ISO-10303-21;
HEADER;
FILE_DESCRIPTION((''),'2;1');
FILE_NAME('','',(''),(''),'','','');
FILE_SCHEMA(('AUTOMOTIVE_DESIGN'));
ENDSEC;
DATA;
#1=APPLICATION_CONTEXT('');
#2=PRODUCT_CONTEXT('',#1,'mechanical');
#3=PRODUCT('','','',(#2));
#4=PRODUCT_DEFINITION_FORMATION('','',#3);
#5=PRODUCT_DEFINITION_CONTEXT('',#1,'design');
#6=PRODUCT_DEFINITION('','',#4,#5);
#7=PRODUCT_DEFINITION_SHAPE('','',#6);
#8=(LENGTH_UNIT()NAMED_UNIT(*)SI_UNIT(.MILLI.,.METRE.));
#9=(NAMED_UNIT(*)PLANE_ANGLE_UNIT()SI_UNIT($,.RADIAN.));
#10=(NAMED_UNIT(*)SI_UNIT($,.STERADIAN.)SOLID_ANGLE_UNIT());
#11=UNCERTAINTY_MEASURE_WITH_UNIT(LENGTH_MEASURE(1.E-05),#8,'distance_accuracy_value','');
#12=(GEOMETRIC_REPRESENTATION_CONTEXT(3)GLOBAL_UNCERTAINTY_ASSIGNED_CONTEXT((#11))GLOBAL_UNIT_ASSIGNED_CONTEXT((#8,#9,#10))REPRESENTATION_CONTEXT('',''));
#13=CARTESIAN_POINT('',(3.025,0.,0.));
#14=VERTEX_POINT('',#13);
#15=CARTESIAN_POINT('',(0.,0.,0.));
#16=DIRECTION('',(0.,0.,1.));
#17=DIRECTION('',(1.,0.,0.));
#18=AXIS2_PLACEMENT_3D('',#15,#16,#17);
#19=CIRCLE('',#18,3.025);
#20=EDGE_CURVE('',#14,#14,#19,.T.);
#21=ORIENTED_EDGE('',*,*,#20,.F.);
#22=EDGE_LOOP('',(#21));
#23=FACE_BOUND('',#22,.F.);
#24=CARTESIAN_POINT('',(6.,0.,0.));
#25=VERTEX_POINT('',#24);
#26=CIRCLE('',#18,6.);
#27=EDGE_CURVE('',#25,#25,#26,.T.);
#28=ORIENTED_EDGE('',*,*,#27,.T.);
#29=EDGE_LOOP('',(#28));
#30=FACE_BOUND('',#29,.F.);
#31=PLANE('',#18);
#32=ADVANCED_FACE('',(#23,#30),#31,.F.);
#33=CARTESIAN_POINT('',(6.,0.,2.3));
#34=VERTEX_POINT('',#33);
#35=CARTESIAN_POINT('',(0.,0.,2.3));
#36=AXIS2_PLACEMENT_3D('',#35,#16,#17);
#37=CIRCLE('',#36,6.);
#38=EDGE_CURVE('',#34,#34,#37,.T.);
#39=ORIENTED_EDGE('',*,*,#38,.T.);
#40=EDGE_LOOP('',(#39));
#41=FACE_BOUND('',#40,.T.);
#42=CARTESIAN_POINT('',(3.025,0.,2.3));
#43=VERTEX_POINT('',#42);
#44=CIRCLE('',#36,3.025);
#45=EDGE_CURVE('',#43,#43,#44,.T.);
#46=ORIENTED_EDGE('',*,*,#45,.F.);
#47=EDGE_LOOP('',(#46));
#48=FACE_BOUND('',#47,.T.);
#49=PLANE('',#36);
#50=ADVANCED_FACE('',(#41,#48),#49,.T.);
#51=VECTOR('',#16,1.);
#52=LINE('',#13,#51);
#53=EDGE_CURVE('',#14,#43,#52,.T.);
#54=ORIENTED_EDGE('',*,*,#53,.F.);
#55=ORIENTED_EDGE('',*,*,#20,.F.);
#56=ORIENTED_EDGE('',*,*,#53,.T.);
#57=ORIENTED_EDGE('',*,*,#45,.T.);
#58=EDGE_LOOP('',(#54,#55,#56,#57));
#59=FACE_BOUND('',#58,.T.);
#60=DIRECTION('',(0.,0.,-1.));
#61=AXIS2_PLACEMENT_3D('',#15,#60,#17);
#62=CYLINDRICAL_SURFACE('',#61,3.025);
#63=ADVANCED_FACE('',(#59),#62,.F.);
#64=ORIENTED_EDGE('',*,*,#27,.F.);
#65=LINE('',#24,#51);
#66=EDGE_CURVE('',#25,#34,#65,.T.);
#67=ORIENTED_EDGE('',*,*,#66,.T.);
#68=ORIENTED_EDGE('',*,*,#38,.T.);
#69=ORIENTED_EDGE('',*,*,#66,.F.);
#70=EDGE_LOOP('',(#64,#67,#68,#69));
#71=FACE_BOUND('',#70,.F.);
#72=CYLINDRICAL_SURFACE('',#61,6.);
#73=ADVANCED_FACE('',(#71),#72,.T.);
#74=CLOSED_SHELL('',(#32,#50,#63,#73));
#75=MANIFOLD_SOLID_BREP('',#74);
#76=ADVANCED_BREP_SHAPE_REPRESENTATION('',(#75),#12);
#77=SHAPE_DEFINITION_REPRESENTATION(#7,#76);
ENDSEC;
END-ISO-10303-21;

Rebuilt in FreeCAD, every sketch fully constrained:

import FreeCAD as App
import Part
import Sketcher

V = App.Vector

doc = App.newDocument("Part")
body = doc.addObject("PartDesign::Body", "Body")

# Sketch on XY plane
sketch1 = body.newObject("Sketcher::SketchObject", "Sketch")
sketch1.AttachmentSupport = (doc.getObject("XY_Plane"), [""])
sketch1.MapMode = "FlatFace"
sketch1.addGeometry([
    Part.Circle(V(0, 0, 0), V(0, 0, 1), 6),
    Part.Circle(V(0, 0, 0), V(0, 0, 1), 3),
], False)
sketch1.addConstraint([
    Sketcher.Constraint("Coincident", 0, 3, -1, 1),
    Sketcher.Constraint("Coincident", 1, 3, -1, 1),
    Sketcher.Constraint("Diameter", 0, 12.0),
    Sketcher.Constraint("Diameter", 1, 6.05),
])
pad1 = body.newObject("PartDesign::Pad", "Pad")
pad1.Profile = sketch1
pad1.Length = 2.3

doc.recompute()
